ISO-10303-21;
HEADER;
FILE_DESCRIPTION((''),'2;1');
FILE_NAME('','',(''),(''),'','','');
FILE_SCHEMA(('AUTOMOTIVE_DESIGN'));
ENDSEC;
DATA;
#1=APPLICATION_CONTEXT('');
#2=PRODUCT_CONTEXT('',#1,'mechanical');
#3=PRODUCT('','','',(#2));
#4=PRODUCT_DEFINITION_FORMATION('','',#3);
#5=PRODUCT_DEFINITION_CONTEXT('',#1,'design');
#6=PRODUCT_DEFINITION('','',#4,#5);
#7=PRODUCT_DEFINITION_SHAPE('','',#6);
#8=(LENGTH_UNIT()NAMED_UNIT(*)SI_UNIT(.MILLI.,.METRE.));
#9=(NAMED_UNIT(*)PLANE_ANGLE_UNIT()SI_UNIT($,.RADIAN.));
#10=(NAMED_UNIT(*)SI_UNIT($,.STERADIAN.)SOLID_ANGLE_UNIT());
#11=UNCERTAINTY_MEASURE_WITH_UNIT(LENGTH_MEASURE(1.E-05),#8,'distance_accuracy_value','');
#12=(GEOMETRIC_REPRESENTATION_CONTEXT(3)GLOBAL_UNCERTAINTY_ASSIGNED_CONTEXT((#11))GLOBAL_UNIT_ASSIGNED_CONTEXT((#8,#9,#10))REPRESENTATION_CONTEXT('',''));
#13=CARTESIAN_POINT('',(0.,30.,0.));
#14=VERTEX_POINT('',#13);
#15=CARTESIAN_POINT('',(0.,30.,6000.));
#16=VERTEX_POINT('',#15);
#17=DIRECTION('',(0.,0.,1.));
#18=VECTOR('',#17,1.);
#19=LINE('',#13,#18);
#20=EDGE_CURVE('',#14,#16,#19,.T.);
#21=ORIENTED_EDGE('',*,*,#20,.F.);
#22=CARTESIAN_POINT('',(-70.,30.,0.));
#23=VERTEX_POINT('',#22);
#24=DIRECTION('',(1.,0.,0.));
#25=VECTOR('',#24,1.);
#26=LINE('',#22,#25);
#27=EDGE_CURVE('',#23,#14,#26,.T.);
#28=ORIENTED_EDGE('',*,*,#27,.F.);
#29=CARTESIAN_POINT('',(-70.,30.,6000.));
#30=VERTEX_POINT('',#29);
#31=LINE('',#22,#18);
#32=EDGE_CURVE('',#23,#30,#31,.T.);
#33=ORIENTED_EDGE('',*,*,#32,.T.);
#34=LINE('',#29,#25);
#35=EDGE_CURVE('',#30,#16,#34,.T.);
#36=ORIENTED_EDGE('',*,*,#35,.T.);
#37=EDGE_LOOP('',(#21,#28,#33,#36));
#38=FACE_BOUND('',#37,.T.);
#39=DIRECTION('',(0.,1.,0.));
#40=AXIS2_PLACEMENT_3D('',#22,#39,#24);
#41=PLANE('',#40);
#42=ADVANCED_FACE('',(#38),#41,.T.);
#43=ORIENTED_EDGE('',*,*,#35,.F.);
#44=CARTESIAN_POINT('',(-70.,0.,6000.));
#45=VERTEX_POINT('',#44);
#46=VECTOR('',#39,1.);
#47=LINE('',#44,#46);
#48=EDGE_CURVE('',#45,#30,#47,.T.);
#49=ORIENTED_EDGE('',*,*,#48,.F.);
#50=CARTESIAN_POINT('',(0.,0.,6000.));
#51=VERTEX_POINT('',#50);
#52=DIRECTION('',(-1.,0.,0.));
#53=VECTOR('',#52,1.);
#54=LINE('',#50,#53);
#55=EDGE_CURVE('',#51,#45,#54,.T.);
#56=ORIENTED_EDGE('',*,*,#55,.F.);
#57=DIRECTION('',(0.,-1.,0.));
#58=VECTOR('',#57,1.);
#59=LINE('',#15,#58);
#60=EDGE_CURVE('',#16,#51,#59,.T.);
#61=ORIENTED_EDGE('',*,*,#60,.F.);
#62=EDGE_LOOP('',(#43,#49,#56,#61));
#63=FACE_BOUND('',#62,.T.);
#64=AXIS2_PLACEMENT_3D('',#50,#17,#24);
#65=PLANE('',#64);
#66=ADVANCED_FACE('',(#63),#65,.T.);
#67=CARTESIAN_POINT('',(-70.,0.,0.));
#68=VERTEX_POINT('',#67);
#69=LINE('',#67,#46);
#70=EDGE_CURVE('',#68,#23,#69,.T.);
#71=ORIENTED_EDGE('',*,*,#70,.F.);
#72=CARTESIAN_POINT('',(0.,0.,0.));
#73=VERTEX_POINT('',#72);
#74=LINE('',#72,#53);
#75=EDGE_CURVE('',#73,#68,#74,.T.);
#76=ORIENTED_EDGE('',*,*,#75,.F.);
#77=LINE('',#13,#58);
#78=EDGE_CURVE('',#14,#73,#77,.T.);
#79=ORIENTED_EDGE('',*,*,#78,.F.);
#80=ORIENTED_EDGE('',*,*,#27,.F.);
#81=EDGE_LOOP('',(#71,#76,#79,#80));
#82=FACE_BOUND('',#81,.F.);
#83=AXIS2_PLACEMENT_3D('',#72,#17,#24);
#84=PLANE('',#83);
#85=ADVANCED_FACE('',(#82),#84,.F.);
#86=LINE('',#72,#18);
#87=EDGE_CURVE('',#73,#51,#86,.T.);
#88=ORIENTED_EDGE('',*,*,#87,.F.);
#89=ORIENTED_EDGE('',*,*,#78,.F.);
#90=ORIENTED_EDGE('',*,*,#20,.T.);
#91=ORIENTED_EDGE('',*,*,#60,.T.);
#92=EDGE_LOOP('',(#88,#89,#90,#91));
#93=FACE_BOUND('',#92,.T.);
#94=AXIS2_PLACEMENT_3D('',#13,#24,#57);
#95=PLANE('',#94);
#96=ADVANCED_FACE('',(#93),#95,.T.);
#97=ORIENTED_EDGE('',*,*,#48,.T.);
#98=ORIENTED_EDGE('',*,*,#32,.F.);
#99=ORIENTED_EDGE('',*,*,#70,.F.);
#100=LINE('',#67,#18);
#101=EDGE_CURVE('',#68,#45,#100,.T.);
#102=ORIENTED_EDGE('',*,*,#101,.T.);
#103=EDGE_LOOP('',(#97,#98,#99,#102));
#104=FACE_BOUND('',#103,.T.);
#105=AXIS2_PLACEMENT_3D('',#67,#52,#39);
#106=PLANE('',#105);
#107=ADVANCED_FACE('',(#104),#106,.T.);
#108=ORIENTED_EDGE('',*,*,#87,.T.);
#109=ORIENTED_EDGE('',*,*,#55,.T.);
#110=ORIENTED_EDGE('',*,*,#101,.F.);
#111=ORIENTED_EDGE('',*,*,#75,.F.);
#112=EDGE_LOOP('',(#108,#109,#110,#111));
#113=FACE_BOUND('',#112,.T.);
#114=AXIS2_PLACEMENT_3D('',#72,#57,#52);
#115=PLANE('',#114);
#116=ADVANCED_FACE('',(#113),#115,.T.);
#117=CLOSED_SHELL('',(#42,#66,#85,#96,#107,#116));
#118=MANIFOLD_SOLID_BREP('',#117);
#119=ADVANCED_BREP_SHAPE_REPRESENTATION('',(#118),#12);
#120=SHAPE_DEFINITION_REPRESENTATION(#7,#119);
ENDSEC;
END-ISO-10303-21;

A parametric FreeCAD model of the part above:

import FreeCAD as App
import Part
import Sketcher
Q = App.Units.Quantity


def add_polygon(sketch, points):
    """Adds a closed chain of lines whose ends are joined by coincident constraints."""
    first, n = sketch.GeometryCount, len(points)
    for a, b in zip(points, points[1:] + points[:1]):
        sketch.addGeometry(Part.LineSegment(App.Vector(*a, 0), App.Vector(*b, 0)), False)
    for i in range(n):
        sketch.addConstraint(Sketcher.Constraint("Coincident", first + i, 2, first + (i + 1) % n, 1))

doc = App.newDocument("Part")
body = doc.addObject("PartDesign::Body", "Body")

# Sketch on XY plane
sketch1 = body.newObject("Sketcher::SketchObject", "Sketch")
sketch1.AttachmentSupport = (doc.getObject("XY_Plane"), [""])
sketch1.MapMode = "FlatFace"
add_polygon(sketch1, [(-70, 0), (0, 0), (0, 30), (-70, 30)])  # lines 0-3
sketch1.addConstraint([
    Sketcher.Constraint("Horizontal", 0),
    Sketcher.Constraint("Vertical", 1),
    Sketcher.Constraint("Horizontal", 2),
    Sketcher.Constraint("Vertical", 3),
    Sketcher.Constraint("Coincident", 0, 2, -1, 1),
    Sketcher.Constraint("DistanceX", 0, 1, 0, 2, Q("70 mm")),
    Sketcher.Constraint("DistanceY", 1, 1, 1, 2, Q("30 mm")),
])
pad1 = body.newObject("PartDesign::Pad", "Pad")
pad1.Profile = sketch1
pad1.Length = 6000

doc.recompute()
